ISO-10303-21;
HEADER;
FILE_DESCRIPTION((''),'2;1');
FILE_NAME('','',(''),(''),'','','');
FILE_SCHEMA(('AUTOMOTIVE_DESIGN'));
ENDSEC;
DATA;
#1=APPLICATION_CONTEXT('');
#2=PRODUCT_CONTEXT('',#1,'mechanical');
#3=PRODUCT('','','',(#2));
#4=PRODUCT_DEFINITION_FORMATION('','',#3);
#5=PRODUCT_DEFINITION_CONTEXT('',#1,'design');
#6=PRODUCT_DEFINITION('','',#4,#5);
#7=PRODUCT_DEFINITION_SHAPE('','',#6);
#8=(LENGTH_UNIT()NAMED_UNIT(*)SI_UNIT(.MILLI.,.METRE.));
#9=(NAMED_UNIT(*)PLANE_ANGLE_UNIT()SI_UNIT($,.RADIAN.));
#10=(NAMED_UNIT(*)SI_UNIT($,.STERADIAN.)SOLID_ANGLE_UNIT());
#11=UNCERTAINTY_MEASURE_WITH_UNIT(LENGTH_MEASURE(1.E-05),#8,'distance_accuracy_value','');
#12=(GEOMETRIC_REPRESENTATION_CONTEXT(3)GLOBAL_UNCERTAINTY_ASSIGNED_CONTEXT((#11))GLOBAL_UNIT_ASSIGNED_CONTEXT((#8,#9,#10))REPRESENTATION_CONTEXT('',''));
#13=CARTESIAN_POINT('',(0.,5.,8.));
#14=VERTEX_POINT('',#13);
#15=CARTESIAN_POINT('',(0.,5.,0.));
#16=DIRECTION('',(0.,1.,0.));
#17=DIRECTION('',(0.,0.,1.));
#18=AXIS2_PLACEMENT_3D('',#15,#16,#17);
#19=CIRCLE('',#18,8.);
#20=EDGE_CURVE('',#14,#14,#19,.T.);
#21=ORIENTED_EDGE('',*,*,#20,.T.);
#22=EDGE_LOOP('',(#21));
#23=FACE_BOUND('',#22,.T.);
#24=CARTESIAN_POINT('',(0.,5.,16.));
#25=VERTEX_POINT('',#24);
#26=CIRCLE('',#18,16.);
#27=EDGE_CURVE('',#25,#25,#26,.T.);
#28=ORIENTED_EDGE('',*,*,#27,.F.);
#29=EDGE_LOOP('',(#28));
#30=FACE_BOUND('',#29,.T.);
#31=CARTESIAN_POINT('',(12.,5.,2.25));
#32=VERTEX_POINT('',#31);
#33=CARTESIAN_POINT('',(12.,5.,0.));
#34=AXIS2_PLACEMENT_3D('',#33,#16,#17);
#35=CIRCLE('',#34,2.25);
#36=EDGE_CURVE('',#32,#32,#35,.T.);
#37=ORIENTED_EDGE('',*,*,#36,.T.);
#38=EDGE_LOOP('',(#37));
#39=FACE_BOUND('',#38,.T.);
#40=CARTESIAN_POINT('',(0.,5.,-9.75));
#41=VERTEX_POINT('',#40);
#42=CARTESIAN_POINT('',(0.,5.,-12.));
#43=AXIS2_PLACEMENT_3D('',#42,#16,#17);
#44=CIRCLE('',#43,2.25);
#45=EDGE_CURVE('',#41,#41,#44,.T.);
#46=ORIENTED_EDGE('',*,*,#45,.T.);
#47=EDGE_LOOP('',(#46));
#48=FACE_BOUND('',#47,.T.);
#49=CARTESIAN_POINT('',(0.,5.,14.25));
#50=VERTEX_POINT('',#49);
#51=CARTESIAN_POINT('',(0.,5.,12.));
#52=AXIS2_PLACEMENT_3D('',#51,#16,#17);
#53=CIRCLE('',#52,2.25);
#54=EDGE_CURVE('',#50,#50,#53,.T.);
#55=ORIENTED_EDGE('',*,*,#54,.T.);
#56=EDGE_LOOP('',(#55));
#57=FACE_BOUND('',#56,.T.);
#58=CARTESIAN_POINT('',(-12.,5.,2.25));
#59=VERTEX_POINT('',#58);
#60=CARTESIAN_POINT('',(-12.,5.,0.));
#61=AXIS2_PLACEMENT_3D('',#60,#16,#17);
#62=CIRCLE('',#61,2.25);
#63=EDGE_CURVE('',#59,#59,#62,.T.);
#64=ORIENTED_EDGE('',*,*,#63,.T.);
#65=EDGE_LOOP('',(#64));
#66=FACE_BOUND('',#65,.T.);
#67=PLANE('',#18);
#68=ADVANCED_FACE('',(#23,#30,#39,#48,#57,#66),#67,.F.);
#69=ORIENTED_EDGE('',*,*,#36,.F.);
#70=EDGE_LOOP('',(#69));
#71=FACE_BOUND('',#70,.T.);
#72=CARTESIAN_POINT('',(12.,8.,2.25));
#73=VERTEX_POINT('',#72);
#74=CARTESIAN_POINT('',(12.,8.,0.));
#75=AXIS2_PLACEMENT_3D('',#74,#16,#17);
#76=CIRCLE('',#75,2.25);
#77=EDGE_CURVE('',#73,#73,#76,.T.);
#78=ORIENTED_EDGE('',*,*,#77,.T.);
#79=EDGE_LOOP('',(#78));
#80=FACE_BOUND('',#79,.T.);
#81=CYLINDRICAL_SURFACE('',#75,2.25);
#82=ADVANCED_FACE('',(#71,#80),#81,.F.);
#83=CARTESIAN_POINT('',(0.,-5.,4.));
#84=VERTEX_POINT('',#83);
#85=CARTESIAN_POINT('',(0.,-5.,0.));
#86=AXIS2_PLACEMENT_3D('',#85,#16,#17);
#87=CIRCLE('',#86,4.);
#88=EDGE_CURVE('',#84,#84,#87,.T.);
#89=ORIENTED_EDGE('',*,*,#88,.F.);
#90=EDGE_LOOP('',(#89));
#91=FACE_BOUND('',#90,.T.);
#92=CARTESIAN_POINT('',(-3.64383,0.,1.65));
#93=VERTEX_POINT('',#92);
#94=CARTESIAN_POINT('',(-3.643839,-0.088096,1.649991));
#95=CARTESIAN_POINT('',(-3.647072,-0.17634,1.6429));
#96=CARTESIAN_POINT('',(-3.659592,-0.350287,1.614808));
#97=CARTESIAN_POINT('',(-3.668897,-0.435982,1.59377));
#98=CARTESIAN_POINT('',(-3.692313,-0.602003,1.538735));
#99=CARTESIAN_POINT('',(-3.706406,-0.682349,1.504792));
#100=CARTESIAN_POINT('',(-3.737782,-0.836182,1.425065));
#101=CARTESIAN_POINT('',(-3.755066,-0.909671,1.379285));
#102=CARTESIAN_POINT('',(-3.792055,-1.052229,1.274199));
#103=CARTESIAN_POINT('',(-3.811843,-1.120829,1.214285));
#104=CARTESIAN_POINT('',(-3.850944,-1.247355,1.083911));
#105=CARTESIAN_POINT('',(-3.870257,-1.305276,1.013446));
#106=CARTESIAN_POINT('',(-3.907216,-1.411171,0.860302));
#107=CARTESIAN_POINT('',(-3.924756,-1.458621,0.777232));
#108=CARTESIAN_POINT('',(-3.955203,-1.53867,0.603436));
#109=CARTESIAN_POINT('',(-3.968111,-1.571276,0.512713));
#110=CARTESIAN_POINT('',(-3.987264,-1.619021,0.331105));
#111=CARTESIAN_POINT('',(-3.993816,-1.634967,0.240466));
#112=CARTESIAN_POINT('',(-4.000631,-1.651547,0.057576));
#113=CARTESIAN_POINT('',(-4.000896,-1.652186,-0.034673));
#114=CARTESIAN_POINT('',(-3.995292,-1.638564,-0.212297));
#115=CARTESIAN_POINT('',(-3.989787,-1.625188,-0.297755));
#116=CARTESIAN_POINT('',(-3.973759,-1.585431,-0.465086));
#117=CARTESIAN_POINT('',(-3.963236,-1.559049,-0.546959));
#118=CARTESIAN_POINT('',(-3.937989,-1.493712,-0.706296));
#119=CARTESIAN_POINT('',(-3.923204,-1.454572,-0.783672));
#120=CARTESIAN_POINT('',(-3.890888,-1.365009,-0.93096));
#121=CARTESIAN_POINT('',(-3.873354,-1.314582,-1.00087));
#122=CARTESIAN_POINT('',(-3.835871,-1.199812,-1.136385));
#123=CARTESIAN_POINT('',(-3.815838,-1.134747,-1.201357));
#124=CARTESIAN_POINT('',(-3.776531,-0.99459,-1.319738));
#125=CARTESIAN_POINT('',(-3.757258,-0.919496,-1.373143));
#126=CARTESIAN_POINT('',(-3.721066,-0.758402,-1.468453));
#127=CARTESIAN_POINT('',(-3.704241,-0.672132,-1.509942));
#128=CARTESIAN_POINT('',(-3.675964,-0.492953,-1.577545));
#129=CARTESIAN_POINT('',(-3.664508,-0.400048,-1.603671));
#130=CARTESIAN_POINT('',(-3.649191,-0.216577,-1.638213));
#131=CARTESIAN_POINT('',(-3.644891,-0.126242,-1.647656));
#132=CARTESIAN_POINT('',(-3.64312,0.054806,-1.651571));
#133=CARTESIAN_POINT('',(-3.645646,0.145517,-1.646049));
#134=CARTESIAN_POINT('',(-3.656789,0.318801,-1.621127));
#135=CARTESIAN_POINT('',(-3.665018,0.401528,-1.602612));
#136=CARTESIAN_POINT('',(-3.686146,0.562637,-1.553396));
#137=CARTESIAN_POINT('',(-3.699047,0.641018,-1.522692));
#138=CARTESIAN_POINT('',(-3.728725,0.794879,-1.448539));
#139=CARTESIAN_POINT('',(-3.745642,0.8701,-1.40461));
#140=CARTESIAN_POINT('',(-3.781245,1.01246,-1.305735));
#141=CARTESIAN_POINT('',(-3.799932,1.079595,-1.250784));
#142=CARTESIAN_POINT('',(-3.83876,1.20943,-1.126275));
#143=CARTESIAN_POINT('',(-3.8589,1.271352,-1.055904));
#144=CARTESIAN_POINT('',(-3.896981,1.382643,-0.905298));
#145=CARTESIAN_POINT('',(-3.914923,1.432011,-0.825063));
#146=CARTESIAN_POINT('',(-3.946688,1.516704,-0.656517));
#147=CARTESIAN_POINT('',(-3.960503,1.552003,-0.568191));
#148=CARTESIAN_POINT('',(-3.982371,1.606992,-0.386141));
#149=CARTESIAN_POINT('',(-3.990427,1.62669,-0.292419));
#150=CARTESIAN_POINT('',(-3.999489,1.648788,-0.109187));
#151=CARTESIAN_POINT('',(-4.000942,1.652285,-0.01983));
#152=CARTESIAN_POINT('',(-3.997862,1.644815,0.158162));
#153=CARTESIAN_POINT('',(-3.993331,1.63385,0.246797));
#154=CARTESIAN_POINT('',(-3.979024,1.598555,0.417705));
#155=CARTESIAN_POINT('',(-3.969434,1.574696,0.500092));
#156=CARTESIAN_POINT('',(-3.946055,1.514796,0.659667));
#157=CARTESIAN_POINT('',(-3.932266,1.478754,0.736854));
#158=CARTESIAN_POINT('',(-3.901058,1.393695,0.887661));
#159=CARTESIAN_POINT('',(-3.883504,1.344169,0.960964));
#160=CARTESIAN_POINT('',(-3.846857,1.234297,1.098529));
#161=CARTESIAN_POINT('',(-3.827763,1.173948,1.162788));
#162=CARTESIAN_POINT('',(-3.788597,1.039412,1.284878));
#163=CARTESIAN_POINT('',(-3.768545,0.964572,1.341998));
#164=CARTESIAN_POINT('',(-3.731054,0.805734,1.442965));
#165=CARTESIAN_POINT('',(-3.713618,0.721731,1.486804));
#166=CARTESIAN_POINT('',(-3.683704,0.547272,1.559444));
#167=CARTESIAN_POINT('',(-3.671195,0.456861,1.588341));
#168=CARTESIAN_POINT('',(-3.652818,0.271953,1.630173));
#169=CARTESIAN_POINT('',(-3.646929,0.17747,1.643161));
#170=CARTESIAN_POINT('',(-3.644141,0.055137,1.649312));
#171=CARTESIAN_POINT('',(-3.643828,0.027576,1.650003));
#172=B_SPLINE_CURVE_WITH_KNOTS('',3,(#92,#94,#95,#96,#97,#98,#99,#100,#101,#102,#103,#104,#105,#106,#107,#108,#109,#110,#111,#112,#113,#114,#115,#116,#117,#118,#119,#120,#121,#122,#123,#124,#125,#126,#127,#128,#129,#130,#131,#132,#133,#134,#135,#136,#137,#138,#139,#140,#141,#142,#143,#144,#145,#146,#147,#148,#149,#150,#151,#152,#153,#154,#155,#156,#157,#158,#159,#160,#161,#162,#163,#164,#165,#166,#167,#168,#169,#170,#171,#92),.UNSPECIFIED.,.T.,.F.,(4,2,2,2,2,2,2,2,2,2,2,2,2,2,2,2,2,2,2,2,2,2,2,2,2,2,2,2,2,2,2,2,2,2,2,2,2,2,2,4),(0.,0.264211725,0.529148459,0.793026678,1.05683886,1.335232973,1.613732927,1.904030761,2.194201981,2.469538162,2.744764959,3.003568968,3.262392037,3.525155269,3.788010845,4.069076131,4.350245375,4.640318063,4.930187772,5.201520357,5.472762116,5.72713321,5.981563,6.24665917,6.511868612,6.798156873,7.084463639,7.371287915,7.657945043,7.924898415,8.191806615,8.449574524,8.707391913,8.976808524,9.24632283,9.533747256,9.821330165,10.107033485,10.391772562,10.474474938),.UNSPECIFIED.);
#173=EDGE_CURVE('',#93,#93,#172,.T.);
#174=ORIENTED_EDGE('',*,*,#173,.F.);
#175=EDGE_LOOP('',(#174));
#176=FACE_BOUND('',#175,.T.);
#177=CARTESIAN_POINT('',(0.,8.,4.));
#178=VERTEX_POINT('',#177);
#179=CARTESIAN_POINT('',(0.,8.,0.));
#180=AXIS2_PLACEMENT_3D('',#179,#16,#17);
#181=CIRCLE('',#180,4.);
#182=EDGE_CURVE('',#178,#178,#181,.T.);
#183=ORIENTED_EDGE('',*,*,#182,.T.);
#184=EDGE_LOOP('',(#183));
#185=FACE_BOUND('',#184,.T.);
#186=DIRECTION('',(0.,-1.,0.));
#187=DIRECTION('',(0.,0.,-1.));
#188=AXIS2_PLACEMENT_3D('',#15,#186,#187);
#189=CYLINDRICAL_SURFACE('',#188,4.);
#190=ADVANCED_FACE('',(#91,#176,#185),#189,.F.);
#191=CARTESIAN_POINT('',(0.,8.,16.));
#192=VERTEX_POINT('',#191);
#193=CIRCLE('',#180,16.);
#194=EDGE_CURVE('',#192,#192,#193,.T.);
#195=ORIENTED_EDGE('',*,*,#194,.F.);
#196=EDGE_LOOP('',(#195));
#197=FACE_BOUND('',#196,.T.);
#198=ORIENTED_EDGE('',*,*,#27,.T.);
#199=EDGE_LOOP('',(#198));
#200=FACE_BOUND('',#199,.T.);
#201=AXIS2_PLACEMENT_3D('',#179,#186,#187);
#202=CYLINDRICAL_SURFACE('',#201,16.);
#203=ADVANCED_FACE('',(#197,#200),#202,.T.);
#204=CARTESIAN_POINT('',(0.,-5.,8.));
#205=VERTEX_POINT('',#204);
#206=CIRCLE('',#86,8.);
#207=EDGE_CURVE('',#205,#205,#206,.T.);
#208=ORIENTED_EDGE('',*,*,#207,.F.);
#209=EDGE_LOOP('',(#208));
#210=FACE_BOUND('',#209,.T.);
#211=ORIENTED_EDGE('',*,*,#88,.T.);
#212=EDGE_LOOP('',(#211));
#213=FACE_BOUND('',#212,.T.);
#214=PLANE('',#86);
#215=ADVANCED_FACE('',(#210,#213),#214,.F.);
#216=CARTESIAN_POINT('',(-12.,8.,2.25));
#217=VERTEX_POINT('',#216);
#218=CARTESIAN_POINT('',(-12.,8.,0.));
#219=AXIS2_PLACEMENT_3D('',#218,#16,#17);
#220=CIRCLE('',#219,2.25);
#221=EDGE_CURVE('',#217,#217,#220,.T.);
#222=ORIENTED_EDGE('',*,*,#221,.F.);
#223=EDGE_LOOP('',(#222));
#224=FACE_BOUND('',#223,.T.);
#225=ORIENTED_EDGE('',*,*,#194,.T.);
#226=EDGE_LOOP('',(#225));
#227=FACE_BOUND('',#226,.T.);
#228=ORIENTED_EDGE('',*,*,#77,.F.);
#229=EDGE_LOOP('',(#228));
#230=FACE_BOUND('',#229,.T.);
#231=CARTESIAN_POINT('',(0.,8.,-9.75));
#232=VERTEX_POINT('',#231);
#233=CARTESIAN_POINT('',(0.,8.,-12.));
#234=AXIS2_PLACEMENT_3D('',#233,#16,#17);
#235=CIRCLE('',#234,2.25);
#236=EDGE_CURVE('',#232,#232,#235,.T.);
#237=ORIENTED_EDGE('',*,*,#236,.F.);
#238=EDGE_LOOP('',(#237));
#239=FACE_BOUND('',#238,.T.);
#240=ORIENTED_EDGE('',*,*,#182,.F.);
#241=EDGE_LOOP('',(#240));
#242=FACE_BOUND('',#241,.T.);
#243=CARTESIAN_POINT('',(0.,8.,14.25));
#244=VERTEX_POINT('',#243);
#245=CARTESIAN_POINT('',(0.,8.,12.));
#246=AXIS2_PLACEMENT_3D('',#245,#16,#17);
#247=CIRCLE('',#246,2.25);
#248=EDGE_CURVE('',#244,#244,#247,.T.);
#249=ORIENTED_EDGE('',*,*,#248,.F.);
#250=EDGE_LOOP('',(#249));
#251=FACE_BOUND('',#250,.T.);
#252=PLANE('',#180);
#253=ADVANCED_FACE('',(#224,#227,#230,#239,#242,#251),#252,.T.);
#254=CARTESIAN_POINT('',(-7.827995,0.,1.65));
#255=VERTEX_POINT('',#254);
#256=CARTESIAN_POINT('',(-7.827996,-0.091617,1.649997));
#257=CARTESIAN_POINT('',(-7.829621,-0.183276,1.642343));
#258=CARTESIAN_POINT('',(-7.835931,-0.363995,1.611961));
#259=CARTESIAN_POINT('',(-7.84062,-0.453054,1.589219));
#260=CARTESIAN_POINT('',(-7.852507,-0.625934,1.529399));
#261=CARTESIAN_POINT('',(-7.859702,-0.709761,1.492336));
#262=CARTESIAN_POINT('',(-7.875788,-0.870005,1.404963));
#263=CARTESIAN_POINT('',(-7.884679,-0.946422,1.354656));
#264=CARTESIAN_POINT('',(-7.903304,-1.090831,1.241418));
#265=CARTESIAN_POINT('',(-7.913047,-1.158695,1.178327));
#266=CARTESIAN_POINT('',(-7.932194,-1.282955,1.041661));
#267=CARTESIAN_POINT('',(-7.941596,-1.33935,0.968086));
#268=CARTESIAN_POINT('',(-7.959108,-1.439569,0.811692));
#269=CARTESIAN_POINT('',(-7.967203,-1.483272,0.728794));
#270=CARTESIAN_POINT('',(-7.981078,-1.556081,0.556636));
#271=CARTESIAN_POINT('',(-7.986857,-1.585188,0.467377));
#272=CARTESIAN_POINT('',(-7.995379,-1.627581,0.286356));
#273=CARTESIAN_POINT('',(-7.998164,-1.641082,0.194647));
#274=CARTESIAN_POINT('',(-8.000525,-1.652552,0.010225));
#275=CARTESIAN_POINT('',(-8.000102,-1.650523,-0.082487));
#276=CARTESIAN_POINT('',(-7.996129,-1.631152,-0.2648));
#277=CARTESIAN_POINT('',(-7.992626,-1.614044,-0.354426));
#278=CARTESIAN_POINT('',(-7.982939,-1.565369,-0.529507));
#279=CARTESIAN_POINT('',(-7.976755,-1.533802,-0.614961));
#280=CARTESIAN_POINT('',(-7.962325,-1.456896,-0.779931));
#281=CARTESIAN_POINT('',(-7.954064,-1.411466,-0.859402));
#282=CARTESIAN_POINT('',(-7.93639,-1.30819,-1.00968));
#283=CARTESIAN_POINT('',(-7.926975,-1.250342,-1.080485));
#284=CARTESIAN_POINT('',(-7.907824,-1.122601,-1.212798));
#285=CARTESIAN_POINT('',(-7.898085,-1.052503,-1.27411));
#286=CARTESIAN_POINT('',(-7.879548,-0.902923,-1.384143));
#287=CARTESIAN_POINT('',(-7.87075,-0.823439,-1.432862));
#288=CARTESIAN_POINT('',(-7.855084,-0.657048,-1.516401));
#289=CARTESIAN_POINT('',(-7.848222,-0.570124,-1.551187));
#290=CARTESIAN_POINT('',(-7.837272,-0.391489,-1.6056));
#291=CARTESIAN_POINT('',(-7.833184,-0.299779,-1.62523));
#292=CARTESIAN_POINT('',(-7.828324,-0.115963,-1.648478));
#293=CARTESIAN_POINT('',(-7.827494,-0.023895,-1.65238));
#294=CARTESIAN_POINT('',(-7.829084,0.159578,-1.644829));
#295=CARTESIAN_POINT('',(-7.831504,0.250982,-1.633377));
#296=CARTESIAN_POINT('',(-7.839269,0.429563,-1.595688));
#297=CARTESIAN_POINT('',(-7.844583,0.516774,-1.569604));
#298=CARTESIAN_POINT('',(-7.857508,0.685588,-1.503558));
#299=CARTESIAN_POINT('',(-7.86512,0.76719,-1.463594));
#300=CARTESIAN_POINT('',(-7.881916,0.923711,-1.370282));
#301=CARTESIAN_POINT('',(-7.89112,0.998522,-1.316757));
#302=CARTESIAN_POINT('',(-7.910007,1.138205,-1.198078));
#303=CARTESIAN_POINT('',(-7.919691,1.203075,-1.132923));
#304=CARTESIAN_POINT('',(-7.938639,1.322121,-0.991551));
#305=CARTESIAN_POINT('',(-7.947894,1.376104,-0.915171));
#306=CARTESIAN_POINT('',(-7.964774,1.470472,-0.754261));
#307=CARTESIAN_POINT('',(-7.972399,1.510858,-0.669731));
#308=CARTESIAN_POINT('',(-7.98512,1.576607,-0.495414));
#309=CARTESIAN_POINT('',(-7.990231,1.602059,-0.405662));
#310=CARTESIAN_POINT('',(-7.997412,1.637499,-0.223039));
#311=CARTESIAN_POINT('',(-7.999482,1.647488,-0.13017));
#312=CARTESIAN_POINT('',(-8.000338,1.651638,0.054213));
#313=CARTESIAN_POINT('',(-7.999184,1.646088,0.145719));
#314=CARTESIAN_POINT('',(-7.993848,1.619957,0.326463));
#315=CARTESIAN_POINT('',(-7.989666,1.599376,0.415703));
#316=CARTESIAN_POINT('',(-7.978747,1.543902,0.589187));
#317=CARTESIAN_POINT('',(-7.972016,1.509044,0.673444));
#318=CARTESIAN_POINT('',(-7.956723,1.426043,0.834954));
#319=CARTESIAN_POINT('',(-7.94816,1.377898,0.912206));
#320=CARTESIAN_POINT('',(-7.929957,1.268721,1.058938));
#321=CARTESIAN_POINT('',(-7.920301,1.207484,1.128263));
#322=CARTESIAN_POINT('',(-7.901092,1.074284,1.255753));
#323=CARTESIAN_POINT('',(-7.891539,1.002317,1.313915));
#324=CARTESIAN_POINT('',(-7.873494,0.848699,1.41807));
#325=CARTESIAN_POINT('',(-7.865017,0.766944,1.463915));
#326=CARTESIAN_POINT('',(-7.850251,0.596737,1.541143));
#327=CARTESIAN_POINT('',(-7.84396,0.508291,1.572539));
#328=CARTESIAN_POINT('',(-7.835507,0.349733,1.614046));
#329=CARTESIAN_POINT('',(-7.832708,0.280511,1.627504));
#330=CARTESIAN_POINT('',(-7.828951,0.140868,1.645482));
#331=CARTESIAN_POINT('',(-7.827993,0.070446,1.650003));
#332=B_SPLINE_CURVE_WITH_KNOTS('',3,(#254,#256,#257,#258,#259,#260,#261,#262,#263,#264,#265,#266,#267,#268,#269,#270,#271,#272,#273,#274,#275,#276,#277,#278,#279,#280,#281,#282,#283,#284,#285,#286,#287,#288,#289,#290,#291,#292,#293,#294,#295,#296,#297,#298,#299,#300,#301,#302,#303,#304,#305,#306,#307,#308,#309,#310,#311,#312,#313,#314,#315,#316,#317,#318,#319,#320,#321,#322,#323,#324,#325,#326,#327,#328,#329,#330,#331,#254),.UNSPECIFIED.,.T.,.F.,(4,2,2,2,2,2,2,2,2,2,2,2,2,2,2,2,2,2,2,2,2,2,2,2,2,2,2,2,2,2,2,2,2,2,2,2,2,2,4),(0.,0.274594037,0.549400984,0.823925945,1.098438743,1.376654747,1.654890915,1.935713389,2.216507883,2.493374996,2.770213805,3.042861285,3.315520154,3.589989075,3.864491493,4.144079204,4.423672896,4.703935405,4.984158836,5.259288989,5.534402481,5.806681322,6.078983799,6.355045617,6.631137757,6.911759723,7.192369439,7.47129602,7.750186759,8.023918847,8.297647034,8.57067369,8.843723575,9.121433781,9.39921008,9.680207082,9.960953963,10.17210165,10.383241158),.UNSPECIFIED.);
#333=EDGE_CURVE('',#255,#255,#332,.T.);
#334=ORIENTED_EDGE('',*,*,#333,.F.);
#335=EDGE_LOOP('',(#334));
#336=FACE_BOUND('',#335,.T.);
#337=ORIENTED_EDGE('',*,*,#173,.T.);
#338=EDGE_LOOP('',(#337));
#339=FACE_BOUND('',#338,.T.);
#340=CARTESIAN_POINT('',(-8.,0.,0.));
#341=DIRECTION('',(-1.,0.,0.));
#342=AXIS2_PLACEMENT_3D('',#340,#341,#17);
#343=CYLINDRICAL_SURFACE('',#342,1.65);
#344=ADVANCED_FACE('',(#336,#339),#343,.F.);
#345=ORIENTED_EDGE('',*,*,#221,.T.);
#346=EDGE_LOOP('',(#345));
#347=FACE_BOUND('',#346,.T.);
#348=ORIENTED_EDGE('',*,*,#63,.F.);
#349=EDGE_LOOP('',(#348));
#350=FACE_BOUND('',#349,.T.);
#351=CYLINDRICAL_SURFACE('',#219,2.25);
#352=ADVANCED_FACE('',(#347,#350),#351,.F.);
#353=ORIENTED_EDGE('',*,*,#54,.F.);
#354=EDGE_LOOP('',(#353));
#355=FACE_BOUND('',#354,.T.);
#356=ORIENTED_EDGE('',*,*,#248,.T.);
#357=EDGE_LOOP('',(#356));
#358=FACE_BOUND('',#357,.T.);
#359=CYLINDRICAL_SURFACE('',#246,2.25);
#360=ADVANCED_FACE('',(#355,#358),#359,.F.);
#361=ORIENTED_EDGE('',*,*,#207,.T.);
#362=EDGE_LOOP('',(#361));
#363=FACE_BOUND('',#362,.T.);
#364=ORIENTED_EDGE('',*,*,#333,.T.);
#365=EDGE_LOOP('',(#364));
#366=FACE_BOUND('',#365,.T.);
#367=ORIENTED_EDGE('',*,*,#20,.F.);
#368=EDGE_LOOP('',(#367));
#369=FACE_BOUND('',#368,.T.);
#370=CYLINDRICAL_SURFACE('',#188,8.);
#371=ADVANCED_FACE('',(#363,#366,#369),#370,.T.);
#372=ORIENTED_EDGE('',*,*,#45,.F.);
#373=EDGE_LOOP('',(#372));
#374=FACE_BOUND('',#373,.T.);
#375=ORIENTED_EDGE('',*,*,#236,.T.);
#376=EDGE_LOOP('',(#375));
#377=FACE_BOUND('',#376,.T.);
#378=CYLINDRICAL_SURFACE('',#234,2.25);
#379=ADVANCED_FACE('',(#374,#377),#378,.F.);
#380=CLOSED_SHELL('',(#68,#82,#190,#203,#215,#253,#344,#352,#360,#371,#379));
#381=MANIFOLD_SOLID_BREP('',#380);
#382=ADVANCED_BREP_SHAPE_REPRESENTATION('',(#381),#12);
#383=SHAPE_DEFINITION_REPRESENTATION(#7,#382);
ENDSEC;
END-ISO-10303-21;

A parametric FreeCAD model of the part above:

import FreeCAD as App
import Part
import Sketcher

V = App.Vector

doc = App.newDocument("Part")
body = doc.addObject("PartDesign::Body", "Body")

sketch1 = doc.addObject("Sketcher::SketchObject", "Sketch")
body.addObject(sketch1)
sketch1.AttachmentSupport = (doc.XZ_Plane, [""])
sketch1.MapMode = "FlatFace"
sketch1.addGeometry(Part.Circle(V(0, 0, 0), V(0, 0, 1), 8), False)
sketch1.addGeometry(Part.Circle(V(0, 0, 0), V(0, 0, 1), 4), False)
sketch1.addConstraint(Sketcher.Constraint("Coincident", 0, 3, -1, 1))
sketch1.addConstraint(Sketcher.Constraint("Coincident", 1, 3, -1, 1))
sketch1.addConstraint(Sketcher.Constraint("Diameter", 0, 16.0))
sketch1.addConstraint(Sketcher.Constraint("Diameter", 1, 8.0))
pad1 = doc.addObject("PartDesign::Pad", "Pad")
body.addObject(pad1)
pad1.Profile = sketch1
pad1.Length = 10
pad1.Midplane = True

sketch2 = doc.addObject("Sketcher::SketchObject", "Sketch001")
body.addObject(sketch2)
sketch2.AttachmentSupport = (doc.XZ_Plane, [""])
sketch2.MapMode = "FlatFace"
sketch2.AttachmentOffset = App.Placement(V(0, 0, -5), App.Rotation())
sketch2.addGeometry(Part.Circle(V(0, 0, 0), V(0, 0, 1), 16), False)
sketch2.addGeometry(Part.Circle(V(0, 0, 0), V(0, 0, 1), 4), False)
sketch2.addConstraint(Sketcher.Constraint("Coincident", 0, 3, -1, 1))
sketch2.addConstraint(Sketcher.Constraint("Coincident", 1, 3, -1, 1))
sketch2.addConstraint(Sketcher.Constraint("Diameter", 0, 32.0))
sketch2.addConstraint(Sketcher.Constraint("Diameter", 1, 8.0))
pad2 = doc.addObject("PartDesign::Pad", "Pad001")
body.addObject(pad2)
pad2.Profile = sketch2
pad2.Length = 3
pad2.Reversed = True

sketch3 = doc.addObject("Sketcher::SketchObject", "Sketch002")
body.addObject(sketch3)
sketch3.AttachmentSupport = (doc.YZ_Plane, [""])
sketch3.MapMode = "FlatFace"
sketch3.AttachmentOffset = App.Placement(V(0, 0, -8), App.Rotation())
sketch3.addGeometry(Part.Circle(V(0, 0, 0), V(0, 0, 1), 1.6), False)
sketch3.addConstraint(Sketcher.Constraint("Coincident", 0, 3, -1, 1))
sketch3.addConstraint(Sketcher.Constraint("Diameter", 0, 3.3))
pocket1 = doc.addObject("PartDesign::Pocket", "Pocket")
body.addObject(pocket1)
pocket1.Profile = sketch3
pocket1.Type = "UpToFirst"
pocket1.Reversed = True

sketch4 = doc.addObject("Sketcher::SketchObject", "Sketch003")
body.addObject(sketch4)
sketch4.AttachmentSupport = (doc.XZ_Plane, [""])
sketch4.MapMode = "FlatFace"
sketch4.AttachmentOffset = App.Placement(V(0, 0, -8), App.Rotation())
sketch4.addGeometry(Part.Circle(V(0, -12, 0), V(0, 0, 1), 2.2), False)
sketch4.addGeometry(Part.Circle(V(12, 0, 0), V(0, 0, 1), 2.2), False)
sketch4.addGeometry(Part.Circle(V(-12, 0, 0), V(0, 0, 1), 2.2), False)
sketch4.addGeometry(Part.Circle(V(0, 12, 0), V(0, 0, 1), 2.2), False)
sketch4.addConstraint(Sketcher.Constraint("Equal", 0, 1))
sketch4.addConstraint(Sketcher.Constraint("Equal", 1, 2))
sketch4.addConstraint(Sketcher.Constraint("Equal", 2, 3))
sketch4.addConstraint(Sketcher.Constraint("Symmetric", 1, 3, 2, 3, -1, 1))
sketch4.addConstraint(Sketcher.Constraint("Symmetric", 0, 3, 3, 3, -1, 1))
sketch4.addConstraint(Sketcher.Constraint("PointOnObject", 0, 3, -2))
sketch4.addConstraint(Sketcher.Constraint("PointOnObject", 1, 3, -1))
sketch4.addConstraint(Sketcher.Constraint("Diameter", 0, 4.5))
sketch4.addConstraint(Sketcher.Constraint("DistanceY", 0, 3, -1, 1, 12.0))
sketch4.addConstraint(Sketcher.Constraint("DistanceX", -1, 1, 1, 3, 12.0))
doc.recompute()
hole = doc.addObject("PartDesign::Hole", "Hole")
body.addObject(hole)
hole.Profile = sketch4
hole.ThreadType = "None"
hole.Diameter = 4.5
hole.DepthType = "ThroughAll"
hole.Reversed = True

doc.recompute()
